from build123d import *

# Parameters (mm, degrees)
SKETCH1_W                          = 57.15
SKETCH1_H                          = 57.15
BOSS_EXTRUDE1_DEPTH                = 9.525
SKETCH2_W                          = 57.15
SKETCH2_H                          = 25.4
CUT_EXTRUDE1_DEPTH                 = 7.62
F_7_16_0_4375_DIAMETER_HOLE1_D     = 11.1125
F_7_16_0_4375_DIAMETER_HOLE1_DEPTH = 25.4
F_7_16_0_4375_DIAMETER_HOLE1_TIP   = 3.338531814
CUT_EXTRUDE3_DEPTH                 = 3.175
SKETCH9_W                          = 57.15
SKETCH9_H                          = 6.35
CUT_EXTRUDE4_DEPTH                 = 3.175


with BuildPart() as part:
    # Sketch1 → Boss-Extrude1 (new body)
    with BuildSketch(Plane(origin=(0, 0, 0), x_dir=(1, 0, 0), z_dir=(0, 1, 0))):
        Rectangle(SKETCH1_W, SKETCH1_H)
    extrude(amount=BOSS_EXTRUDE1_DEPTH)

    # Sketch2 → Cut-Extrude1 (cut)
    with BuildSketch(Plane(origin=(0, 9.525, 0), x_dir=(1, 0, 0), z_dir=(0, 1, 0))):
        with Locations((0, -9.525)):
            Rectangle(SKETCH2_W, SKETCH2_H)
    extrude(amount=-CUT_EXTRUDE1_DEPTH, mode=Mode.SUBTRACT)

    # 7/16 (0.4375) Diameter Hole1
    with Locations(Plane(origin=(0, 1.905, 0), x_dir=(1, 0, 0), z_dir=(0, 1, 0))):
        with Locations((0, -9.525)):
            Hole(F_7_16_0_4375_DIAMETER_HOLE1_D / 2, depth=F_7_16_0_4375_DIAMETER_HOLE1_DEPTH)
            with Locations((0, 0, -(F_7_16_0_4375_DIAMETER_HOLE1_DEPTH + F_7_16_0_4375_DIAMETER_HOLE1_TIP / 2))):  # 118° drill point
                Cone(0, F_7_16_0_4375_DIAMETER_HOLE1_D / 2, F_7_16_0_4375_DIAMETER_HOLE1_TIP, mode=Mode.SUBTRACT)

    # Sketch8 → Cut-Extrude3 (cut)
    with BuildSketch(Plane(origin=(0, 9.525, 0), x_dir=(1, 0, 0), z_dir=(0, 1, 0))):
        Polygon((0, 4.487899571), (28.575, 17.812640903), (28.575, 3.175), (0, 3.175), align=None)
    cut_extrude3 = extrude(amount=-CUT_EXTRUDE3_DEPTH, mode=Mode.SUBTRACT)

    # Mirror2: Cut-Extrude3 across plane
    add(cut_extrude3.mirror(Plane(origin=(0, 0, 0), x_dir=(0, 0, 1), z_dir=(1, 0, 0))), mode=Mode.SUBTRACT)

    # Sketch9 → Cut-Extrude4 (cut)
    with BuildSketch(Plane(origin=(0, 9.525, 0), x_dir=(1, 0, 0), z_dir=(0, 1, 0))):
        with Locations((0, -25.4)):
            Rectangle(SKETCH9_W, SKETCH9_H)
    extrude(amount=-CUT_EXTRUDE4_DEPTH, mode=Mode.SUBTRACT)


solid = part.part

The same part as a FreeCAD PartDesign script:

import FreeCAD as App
import Part
import Sketcher
Q = App.Units.Quantity


def add_polygon(sketch, points):
    """Adds a closed chain of lines whose ends are joined by coincident constraints."""
    first, n = sketch.GeometryCount, len(points)
    for a, b in zip(points, points[1:] + points[:1]):
        sketch.addGeometry(Part.LineSegment(App.Vector(*a, 0), App.Vector(*b, 0)), False)
    for i in range(n):
        sketch.addConstraint(Sketcher.Constraint("Coincident", first + i, 2, first + (i + 1) % n, 1))

doc = App.newDocument("Part")
body = doc.addObject("PartDesign::Body", "Body")

# Sketch on XZ plane
sketch1 = body.newObject("Sketcher::SketchObject", "Sketch")
sketch1.AttachmentSupport = (doc.getObject("XZ_Plane"), [""])
sketch1.MapMode = "FlatFace"
add_polygon(sketch1, [(-29, -29), (-29, 29), (29, 29), (29, -29)])  # lines 0-3
sketch1.addConstraint([
    Sketcher.Constraint("Vertical", 0),
    Sketcher.Constraint("Horizontal", 1),
    Sketcher.Constraint("Vertical", 2),
    Sketcher.Constraint("Horizontal", 3),
    Sketcher.Constraint("Symmetric", 0, 2, 2, 2, -1, 1),
    Sketcher.Constraint("Equal", 3, 0),
    Sketcher.Constraint("DistanceX", 1, 1, 1, 2, Q("2.25 in")),
])
pad1 = body.newObject("PartDesign::Pad", "Pad")
pad1.Profile = sketch1
pad1.Length = Q("0.375 in")
pad1.Reversed = True

# Sketch on XZ plane
sketch2 = body.newObject("Sketcher::SketchObject", "Sketch001")
sketch2.AttachmentSupport = (doc.getObject("XZ_Plane"), [""])
sketch2.MapMode = "FlatFace"
sketch2.AttachmentOffset = App.Placement(App.Vector(0, 0, -0.375 * 25.4), App.Rotation())
add_polygon(sketch2, [(-29, -3), (-29, 22), (29, 22), (29, -3)])  # lines 0-3
sketch2.addConstraint([
    Sketcher.Constraint("Vertical", 0),
    Sketcher.Constraint("Horizontal", 1),
    Sketcher.Constraint("Vertical", 2),
    Sketcher.Constraint("Horizontal", 3),
    Sketcher.Constraint("DistanceY", 0, 1, 0, 2, Q("1 in")),
    Sketcher.Constraint("DistanceX", 1, 1, 1, 2, Q("2.25 in")),
    Sketcher.Constraint("DistanceX", 0, 2, -1, 1, Q("1.125 in")),
    Sketcher.Constraint("DistanceY", -1, 1, 0, 2, Q("0.875 in")),
])
pocket1 = body.newObject("PartDesign::Pocket", "Pocket")
pocket1.Profile = sketch2
pocket1.Length = Q("0.3 in")
pocket1.Reversed = True

# Sketch on XZ plane
sketch3 = body.newObject("Sketcher::SketchObject", "Sketch002")
sketch3.AttachmentSupport = (doc.getObject("XZ_Plane"), [""])
sketch3.MapMode = "FlatFace"
sketch3.AttachmentOffset = App.Placement(App.Vector(0, 0, -0.075 * 25.4), App.Rotation())
sketch3.addGeometry(Part.Circle(App.Vector(0, 10, 0), App.Vector(0, 0, 1), 6), False)
sketch3.addConstraint([
    Sketcher.Constraint("PointOnObject", 0, 3, -2),
    Sketcher.Constraint("Diameter", 0, Q("0.4375 in")),
    Sketcher.Constraint("DistanceY", -1, 1, 0, 3, Q("0.375 in")),
])
doc.recompute()
hole = body.newObject("PartDesign::Hole", "Hole")
hole.Profile = sketch3
hole.ThreadType = "None"
hole.Diameter = Q("0.4375 in")
hole.DepthType = "Dimension"
hole.Depth = Q("1 in")
hole.DrillPoint = "Angled"
hole.DrillPointAngle = 118
hole.Reversed = True

# Sketch on XZ plane
sketch4 = body.newObject("Sketcher::SketchObject", "Sketch003")
sketch4.AttachmentSupport = (doc.getObject("XZ_Plane"), [""])
sketch4.MapMode = "FlatFace"
sketch4.AttachmentOffset = App.Placement(App.Vector(0, 0, -0.375 * 25.4), App.Rotation())
add_polygon(sketch4, [(28.6, -17.8), (0, -4.5), (0, -3.2), (28.6, -3.2)])  # lines 0-3
sketch4.addConstraint([
    Sketcher.Constraint("Vertical", 1),
    Sketcher.Constraint("Horizontal", 2),
    Sketcher.Constraint("Vertical", 3),
    Sketcher.Constraint("PointOnObject", 0, 2, -2),
    Sketcher.Constraint("Angle", 0, Q("155 deg")),
    Sketcher.Constraint("DistanceX", 2, 1, 2, 2, Q("1.125 in")),
    Sketcher.Constraint("DistanceY", 1, 2, -1, 1, Q("0.125 in")),
    Sketcher.Constraint("DistanceY", 1, 1, 1, 2, 1.3129),
])
pocket2 = body.newObject("PartDesign::Pocket", "Pocket001")
pocket2.Profile = sketch4
pocket2.Length = Q("0.125 in")
pocket2.Reversed = True
doc.recompute()

mirrored = body.newObject("PartDesign::Mirrored", "Mirrored")
mirrored.Originals = [pocket2]
mirrored.MirrorPlane = (doc.getObject("YZ_Plane"), [""])
body.Tip = mirrored

# Sketch on XZ plane
sketch5 = body.newObject("Sketcher::SketchObject", "Sketch004")
sketch5.AttachmentSupport = (doc.getObject("XZ_Plane"), [""])
sketch5.MapMode = "FlatFace"
sketch5.AttachmentOffset = App.Placement(App.Vector(0, 0, -0.375 * 25.4), App.Rotation())
add_polygon(sketch5, [(-29, 22), (-29, 29), (29, 29), (29, 22)])  # lines 0-3
sketch5.addConstraint([
    Sketcher.Constraint("Vertical", 0),
    Sketcher.Constraint("Horizontal", 1),
    Sketcher.Constraint("Vertical", 2),
    Sketcher.Constraint("Horizontal", 3),
    Sketcher.Constraint("DistanceX", 1, 1, 1, 2, Q("2.25 in")),
    Sketcher.Constraint("DistanceY", 0, 1, 0, 2, Q("0.25 in")),
    Sketcher.Constraint("DistanceX", 0, 2, -1, 1, Q("1.125 in")),
    Sketcher.Constraint("DistanceY", -1, 1, 0, 2, Q("1.125 in")),
])
pocket3 = body.newObject("PartDesign::Pocket", "Pocket002")
pocket3.Profile = sketch5
pocket3.Length = Q("0.125 in")
pocket3.Reversed = True

doc.recompute()
